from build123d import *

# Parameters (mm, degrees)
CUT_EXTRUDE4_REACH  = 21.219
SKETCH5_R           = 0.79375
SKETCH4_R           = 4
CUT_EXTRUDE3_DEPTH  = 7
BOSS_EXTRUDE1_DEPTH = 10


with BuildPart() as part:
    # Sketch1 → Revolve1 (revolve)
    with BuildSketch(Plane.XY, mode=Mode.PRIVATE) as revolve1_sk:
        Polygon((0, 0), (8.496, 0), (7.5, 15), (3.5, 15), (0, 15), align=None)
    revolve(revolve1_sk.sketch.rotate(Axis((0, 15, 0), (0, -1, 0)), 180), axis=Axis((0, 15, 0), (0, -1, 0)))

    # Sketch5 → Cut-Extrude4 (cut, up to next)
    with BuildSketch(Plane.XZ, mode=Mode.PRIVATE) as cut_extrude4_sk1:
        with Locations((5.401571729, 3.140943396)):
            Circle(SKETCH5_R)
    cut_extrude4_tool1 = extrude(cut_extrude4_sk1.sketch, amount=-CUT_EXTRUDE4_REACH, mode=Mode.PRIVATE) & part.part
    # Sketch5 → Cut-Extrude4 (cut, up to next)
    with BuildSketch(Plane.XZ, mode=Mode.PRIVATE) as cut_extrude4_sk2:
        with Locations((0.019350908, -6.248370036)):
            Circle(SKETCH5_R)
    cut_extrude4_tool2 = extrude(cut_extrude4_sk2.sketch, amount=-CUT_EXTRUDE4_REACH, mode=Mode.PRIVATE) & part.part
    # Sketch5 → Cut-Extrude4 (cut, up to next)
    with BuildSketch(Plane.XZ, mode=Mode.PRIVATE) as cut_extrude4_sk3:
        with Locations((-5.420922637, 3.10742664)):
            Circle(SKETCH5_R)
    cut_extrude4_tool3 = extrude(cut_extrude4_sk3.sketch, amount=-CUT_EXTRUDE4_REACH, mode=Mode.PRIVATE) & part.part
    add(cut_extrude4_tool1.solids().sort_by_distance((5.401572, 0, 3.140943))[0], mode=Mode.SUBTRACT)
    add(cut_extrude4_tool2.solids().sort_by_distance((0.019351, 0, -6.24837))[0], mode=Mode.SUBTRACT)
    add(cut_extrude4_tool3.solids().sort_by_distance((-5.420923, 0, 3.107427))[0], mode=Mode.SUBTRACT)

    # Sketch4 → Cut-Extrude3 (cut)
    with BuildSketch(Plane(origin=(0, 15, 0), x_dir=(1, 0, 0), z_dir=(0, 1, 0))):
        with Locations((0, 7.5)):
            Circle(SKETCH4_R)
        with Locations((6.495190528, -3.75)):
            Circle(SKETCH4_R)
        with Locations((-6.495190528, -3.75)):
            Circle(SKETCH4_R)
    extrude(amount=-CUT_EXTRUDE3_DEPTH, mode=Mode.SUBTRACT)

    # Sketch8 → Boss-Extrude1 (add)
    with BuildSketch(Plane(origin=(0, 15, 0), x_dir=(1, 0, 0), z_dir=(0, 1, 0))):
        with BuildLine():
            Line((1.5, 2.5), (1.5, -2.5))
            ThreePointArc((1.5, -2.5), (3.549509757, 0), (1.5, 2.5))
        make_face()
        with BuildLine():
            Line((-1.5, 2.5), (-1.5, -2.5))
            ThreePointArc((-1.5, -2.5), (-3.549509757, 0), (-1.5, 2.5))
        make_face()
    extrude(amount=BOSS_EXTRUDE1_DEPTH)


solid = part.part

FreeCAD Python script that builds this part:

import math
import FreeCAD as App
import Part
import Sketcher

V = App.Vector
Q = App.Units.Quantity

doc = App.newDocument("Part")
body = doc.addObject("PartDesign::Body", "Body")

# Sketch on XY plane
sketch1 = body.newObject("Sketcher::SketchObject", "Sketch")
sketch1.AttachmentSupport = (doc.getObject("XY_Plane"), [""])
sketch1.MapMode = "FlatFace"
sketch1.addGeometry([
    Part.LineSegment(V(0, 0, 0), V(8, 0, 0)),
    Part.LineSegment(V(8, 0, 0), V(8, 15, 0)),
    Part.LineSegment(V(8, 15, 0), V(0, 15, 0)),
    Part.LineSegment(V(0, 15, 0), V(0, 0, 0)),
], False)
sketch1.addConstraint([
    Sketcher.Constraint("Coincident", 0, 2, 1, 1),
    Sketcher.Constraint("Coincident", 1, 2, 2, 1),
    Sketcher.Constraint("Coincident", 2, 2, 3, 1),
    Sketcher.Constraint("Coincident", 3, 2, 0, 1),
    Sketcher.Constraint("Horizontal", 0),
    Sketcher.Constraint("Horizontal", 2),
    Sketcher.Constraint("Vertical", 3),
    Sketcher.Constraint("Coincident", 3, 2, -1, 1),
    Sketcher.Constraint("DistanceY", 3, 2, 3, 1, Q("15 mm")),
    Sketcher.Constraint("DistanceX", 2, 2, 2, 1, Q("7.5 mm")),
    Sketcher.Constraint("DistanceX", 0, 1, 0, 2, Q("8.496 mm")),
])
revolution = body.newObject("PartDesign::Revolution", "Revolution")
revolution.Profile = sketch1
revolution.ReferenceAxis = (sketch1, ["V_Axis"])
revolution.Angle = 360

# Sketch on XZ plane
sketch2 = body.newObject("Sketcher::SketchObject", "Sketch001")
sketch2.AttachmentSupport = (doc.getObject("XZ_Plane"), [""])
sketch2.MapMode = "FlatFace"
sketch2.addGeometry(Part.Circle(V(5.4, 3.1, 0), V(0, 0, 1), 0.8), False)
sketch2.addConstraint([
    Sketcher.Constraint("Diameter", 0, Q("1.5875 mm")),
    Sketcher.Constraint("DistanceX", -1, 1, 0, 3, Q("5.401572 mm")),
    Sketcher.Constraint("DistanceY", -1, 1, 0, 3, Q("3.140943 mm")),
])
pocket1 = body.newObject("PartDesign::Pocket", "Pocket")
pocket1.Profile = sketch2
pocket1.Type = "UpToFirst"

# Sketch on XZ plane
sketch3 = body.newObject("Sketcher::SketchObject", "Sketch002")
sketch3.AttachmentSupport = (doc.getObject("XZ_Plane"), [""])
sketch3.MapMode = "FlatFace"
sketch3.addGeometry(Part.Circle(V(0, -6.2, 0), V(0, 0, 1), 0.8), False)
sketch3.addConstraint([
    Sketcher.Constraint("Diameter", 0, Q("1.5875 mm")),
    Sketcher.Constraint("DistanceX", -1, 1, 0, 3, Q("0.019351 mm")),
    Sketcher.Constraint("DistanceY", 0, 3, -1, 1, Q("6.24837 mm")),
])
pocket2 = body.newObject("PartDesign::Pocket", "Pocket001")
pocket2.Profile = sketch3
pocket2.Type = "UpToFirst"

# Sketch on XZ plane
sketch4 = body.newObject("Sketcher::SketchObject", "Sketch003")
sketch4.AttachmentSupport = (doc.getObject("XZ_Plane"), [""])
sketch4.MapMode = "FlatFace"
sketch4.addGeometry(Part.Circle(V(-5.4, 3.1, 0), V(0, 0, 1), 0.8), False)
sketch4.addConstraint([
    Sketcher.Constraint("Diameter", 0, Q("1.5875 mm")),
    Sketcher.Constraint("DistanceX", 0, 3, -1, 1, Q("5.420923 mm")),
    Sketcher.Constraint("DistanceY", -1, 1, 0, 3, Q("3.107427 mm")),
])
pocket3 = body.newObject("PartDesign::Pocket", "Pocket002")
pocket3.Profile = sketch4
pocket3.Type = "UpToFirst"

# Sketch on XZ plane
sketch5 = body.newObject("Sketcher::SketchObject", "Sketch004")
sketch5.AttachmentSupport = (doc.getObject("XZ_Plane"), [""])
sketch5.MapMode = "FlatFace"
sketch5.AttachmentOffset = App.Placement(V(0, 0, -15), App.Rotation())
sketch5.addGeometry([
    Part.Circle(V(0, -7.5, 0), V(0, 0, 1), 4),
    Part.Circle(V(6.5, 3.8, 0), V(0, 0, 1), 4),
    Part.Circle(V(-6.5, 3.8, 0), V(0, 0, 1), 4),
], False)
sketch5.addConstraint([
    Sketcher.Constraint("Equal", 0, 1),
    Sketcher.Constraint("Equal", 1, 2),
    Sketcher.Constraint("Symmetric", 1, 3, 2, 3, -2),
    Sketcher.Constraint("PointOnObject", 0, 3, -2),
    Sketcher.Constraint("Diameter", 0, Q("8 mm")),
    Sketcher.Constraint("DistanceY", 0, 3, -1, 1, Q("7.5 mm")),
    Sketcher.Constraint("DistanceY", -1, 1, 1, 3, Q("3.75 mm")),
    Sketcher.Constraint("DistanceX", -1, 1, 1, 3, Q("6.495191 mm")),
])
pocket4 = body.newObject("PartDesign::Pocket", "Pocket003")
pocket4.Profile = sketch5
pocket4.Length = 7
pocket4.Reversed = True

# Sketch on XZ plane
sketch6 = body.newObject("Sketcher::SketchObject", "Sketch005")
sketch6.AttachmentSupport = (doc.getObject("XZ_Plane"), [""])
sketch6.MapMode = "FlatFace"
sketch6.AttachmentOffset = App.Placement(V(0, 0, -15), App.Rotation())
sketch6.addGeometry([
    Part.LineSegment(V(1.5, -2.5, 0), V(1.5, 2.5, 0)),
    Part.ArcOfCircle(Part.Circle(V(1, 0, 0), V(0, 0, 1), 2.5), math.radians(-79), math.radians(79)),
    Part.LineSegment(V(-1.5, 2.5, 0), V(-1.5, -2.5, 0)),
    Part.ArcOfCircle(Part.Circle(V(-1, 0, 0), V(0, 0, 1), 2.5), math.radians(101), math.radians(259)),
], False)
sketch6.addConstraint([
    Sketcher.Constraint("Coincident", 0, 1, 1, 1),
    Sketcher.Constraint("Coincident", 1, 2, 0, 2),
    Sketcher.Constraint("Coincident", 2, 1, 3, 1),
    Sketcher.Constraint("Coincident", 3, 2, 2, 2),
    Sketcher.Constraint("Vertical", 0),
    Sketcher.Constraint("Vertical", 2),
    Sketcher.Constraint("Equal", 1, 3),
    Sketcher.Constraint("Symmetric", 1, 3, 3, 3, -1, 1),
    Sketcher.Constraint("Symmetric", 1, 2, 2, 1, -2),
    Sketcher.Constraint("DistanceY", 0, 1, 0, 2, Q("5 mm")),
    Sketcher.Constraint("DistanceX", -1, 1, 1, 3, Q("1 mm")),
    Sketcher.Constraint("DistanceX", 2, 1, 1, 2, Q("3 mm")),
])
pad1 = body.newObject("PartDesign::Pad", "Pad")
pad1.Profile = sketch6
pad1.Length = 10
pad1.Reversed = True

doc.recompute()
